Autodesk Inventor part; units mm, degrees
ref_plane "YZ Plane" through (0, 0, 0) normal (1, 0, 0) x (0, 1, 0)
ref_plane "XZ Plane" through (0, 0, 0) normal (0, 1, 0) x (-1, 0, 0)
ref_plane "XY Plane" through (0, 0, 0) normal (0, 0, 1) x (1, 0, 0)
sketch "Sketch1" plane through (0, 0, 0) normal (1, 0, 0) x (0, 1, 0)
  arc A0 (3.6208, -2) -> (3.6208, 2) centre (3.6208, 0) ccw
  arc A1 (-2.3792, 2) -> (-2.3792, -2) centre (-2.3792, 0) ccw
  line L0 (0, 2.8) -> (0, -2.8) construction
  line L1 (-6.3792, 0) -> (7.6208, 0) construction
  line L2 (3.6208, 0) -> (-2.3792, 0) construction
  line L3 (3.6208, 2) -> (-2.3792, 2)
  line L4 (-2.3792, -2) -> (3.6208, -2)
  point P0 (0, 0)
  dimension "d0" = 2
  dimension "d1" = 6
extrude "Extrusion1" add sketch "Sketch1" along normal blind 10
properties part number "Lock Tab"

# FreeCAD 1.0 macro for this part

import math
import FreeCAD as App
import Part
import Sketcher
from FreeCAD import Vector
Q = App.Units.Quantity

doc = App.newDocument("Part")
body = doc.addObject("PartDesign::Body", "Body")

sketch1 = body.newObject("Sketcher::SketchObject", "Sketch")
sketch1.AttachmentSupport = (doc.getObject("YZ_Plane"), [""])
sketch1.MapMode = "FlatFace"
sketch1.addGeometry(Part.LineSegment(Vector(-2.4, -2, 0), Vector(3.6, -2, 0)), False)
sketch1.addGeometry(Part.ArcOfCircle(Part.Circle(Vector(3.6, 0, 0), Vector(0, 0, 1), 2), math.radians(-90), math.radians(90)), False)
sketch1.addGeometry(Part.LineSegment(Vector(3.6, 2, 0), Vector(-2.4, 2, 0)), False)
sketch1.addGeometry(Part.ArcOfCircle(Part.Circle(Vector(-2.4, 0, 0), Vector(0, 0, 1), 2), math.radians(90), math.radians(270)), False)
sketch1.addConstraint(Sketcher.Constraint("Tangent", 0, 2, 1, 1))
sketch1.addConstraint(Sketcher.Constraint("Tangent", 1, 2, 2, 1))
sketch1.addConstraint(Sketcher.Constraint("Tangent", 2, 2, 3, 1))
sketch1.addConstraint(Sketcher.Constraint("Tangent", 3, 2, 0, 1))
sketch1.addConstraint(Sketcher.Constraint("Horizontal", 0))
sketch1.addConstraint(Sketcher.Constraint("Horizontal", 2))
sketch1.addConstraint(Sketcher.Constraint("PointOnObject", 1, 3, -1))
sketch1.addConstraint(Sketcher.Constraint("Radius", 1, Q("2 mm")))
sketch1.addConstraint(Sketcher.Constraint("DistanceX", 0, 1, 0, 2, Q("6 mm")))
sketch1.addConstraint(Sketcher.Constraint("DistanceX", -1, 1, 1, 3, Q("3.6208 mm")))
pad1 = body.newObject("PartDesign::Pad", "Pad")
pad1.Profile = sketch1
pad1.Length = 10

doc.recompute()
